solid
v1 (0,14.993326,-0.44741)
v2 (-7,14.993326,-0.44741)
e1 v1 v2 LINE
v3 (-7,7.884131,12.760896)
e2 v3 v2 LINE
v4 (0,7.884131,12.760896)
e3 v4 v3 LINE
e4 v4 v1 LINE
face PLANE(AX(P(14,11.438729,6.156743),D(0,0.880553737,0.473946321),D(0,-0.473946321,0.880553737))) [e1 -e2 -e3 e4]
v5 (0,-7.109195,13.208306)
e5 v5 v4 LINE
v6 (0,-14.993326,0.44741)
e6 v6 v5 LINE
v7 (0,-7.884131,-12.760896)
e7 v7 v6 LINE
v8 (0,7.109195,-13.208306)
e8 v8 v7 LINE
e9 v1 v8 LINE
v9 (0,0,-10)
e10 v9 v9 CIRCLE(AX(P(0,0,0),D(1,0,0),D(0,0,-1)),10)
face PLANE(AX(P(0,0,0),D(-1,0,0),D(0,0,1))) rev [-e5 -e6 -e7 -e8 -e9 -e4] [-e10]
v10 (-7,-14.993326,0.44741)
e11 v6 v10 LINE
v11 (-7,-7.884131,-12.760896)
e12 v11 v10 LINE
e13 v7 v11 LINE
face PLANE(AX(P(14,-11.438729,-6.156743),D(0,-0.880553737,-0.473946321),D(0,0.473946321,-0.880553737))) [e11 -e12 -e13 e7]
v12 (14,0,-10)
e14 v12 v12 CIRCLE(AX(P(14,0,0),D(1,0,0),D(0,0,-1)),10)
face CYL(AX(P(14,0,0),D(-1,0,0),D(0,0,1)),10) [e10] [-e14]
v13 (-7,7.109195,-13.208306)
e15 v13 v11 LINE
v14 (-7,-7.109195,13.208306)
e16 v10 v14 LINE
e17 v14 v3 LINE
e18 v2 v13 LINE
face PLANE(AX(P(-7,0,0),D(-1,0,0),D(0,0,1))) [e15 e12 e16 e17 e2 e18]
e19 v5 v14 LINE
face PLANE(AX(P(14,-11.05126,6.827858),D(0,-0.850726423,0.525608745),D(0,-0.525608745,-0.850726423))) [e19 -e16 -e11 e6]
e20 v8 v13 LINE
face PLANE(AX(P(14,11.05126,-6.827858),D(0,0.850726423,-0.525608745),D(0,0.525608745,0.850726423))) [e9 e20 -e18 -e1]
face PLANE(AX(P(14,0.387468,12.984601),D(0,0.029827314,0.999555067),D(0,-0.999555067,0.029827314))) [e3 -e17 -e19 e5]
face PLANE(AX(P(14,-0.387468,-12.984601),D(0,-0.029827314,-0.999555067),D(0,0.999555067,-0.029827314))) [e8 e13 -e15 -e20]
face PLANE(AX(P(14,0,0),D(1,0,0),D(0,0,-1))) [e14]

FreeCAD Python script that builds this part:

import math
import FreeCAD as App
import Part
import Sketcher
from FreeCAD import Vector
Q = App.Units.Quantity

doc = App.newDocument("Part")
body = doc.addObject("PartDesign::Body", "Body")

# Sketch on YZ plane
sketch1 = body.newObject("Sketcher::SketchObject", "Sketch")
sketch1.AttachmentSupport = (doc.getObject("YZ_Plane"), [""])
sketch1.MapMode = "FlatFace"
sketch1.addGeometry(Part.Circle(Vector(0, 0, 0), Vector(0, 0, 1), 10), False)
sketch1.addConstraint([
    Sketcher.Constraint("Coincident", 0, 3, -1, 1),
    Sketcher.Constraint("Diameter", 0, Q("20 mm")),
])
pad1 = body.newObject("PartDesign::Pad", "Pad")
pad1.Profile = sketch1
pad1.Length = 14

# Sketch on YZ plane
sketch2 = body.newObject("Sketcher::SketchObject", "Sketch001")
sketch2.AttachmentSupport = (doc.getObject("YZ_Plane"), [""])
sketch2.MapMode = "FlatFace"
sketch2.addGeometry(Part.Circle(Vector(0, 0, 0), Vector(0, 0, 1), 15), False)
sketch2.addConstraint([
    Sketcher.Constraint("Coincident", 0, 3, -1, 1),
    Sketcher.Constraint("Diameter", 0, Q("30 mm")),
])
pad2 = body.newObject("PartDesign::Pad", "Pad001")
pad2.Profile = sketch2
pad2.Length = 7
pad2.Reversed = True

# Sketch on YZ plane
sketch3 = body.newObject("Sketcher::SketchObject", "Sketch002")
sketch3.AttachmentSupport = (doc.getObject("YZ_Plane"), [""])
sketch3.MapMode = "FlatFace"
sketch3.AttachmentOffset = App.Placement(Vector(0, 0, -7), App.Rotation())
sketch3.addGeometry([
    Part.LineSegment(Vector(7, -13, 0), Vector(15, 0, 0)),  # 0
    Part.ArcOfCircle(Part.Circle(Vector(0, 0, 0), Vector(0, 0, 1), 15), math.radians(-62), math.radians(-2)),  # 1
    Part.LineSegment(Vector(-8, -13, 0), Vector(7, -13, 0)),  # 2
    Part.ArcOfCircle(Part.Circle(Vector(0, 0, 0), Vector(0, 0, 1), 15), math.radians(-122), math.radians(-62)),  # 3
    Part.LineSegment(Vector(-15, 0, 0), Vector(-8, -13, 0)),  # 4
    Part.ArcOfCircle(Part.Circle(Vector(0, 0, 0), Vector(0, 0, 1), 15), math.radians(178), math.radians(238)),  # 5
    Part.ArcOfCircle(Part.Circle(Vector(0, 0, 0), Vector(0, 0, 1), 15), math.radians(118), math.radians(178)),  # 6
    Part.LineSegment(Vector(-7, 13, 0), Vector(-15, 0, 0)),  # 7
    Part.ArcOfCircle(Part.Circle(Vector(0, 0, 0), Vector(0, 0, 1), 15), math.radians(58), math.radians(90)),  # 8
    Part.LineSegment(Vector(8, 13, 0), Vector(-7, 13, 0)),  # 9
    Part.ArcOfCircle(Part.Circle(Vector(0, 0, 0), Vector(0, 0, 1), 15), math.radians(90), math.radians(118)),  # 10
    Part.ArcOfCircle(Part.Circle(Vector(0, 0, 0), Vector(0, 0, 1), 15), math.radians(-2), math.radians(58)),  # 11
    Part.LineSegment(Vector(15, 0, 0), Vector(8, 13, 0)),  # 12
], False)
sketch3.addConstraint([
    Sketcher.Constraint("Coincident", 0, 1, 1, 1),
    Sketcher.Constraint("Coincident", 1, 2, 0, 2),
    Sketcher.Constraint("Coincident", 2, 1, 3, 1),
    Sketcher.Constraint("Coincident", 3, 2, 2, 2),
    Sketcher.Constraint("Coincident", 4, 1, 5, 1),
    Sketcher.Constraint("Coincident", 5, 2, 4, 2),
    Sketcher.Constraint("Coincident", 6, 1, 7, 1),
    Sketcher.Constraint("Coincident", 7, 2, 6, 2),
    Sketcher.Constraint("Coincident", 8, 1, 9, 1),
    Sketcher.Constraint("Coincident", 9, 2, 10, 2),
    Sketcher.Constraint("Tangent", 10, 1, 8, 2),
    Sketcher.Constraint("Coincident", 11, 1, 12, 1),
    Sketcher.Constraint("Coincident", 12, 2, 11, 2),
    Sketcher.Constraint("Coincident", 1, 3, -1, 1),
    Sketcher.Constraint("Coincident", 3, 3, -1, 1),
    Sketcher.Constraint("Coincident", 5, 3, -1, 1),
    Sketcher.Constraint("Coincident", 6, 3, -1, 1),
    Sketcher.Constraint("Coincident", 8, 3, -1, 1),
    Sketcher.Constraint("Coincident", 11, 3, -1, 1),
    Sketcher.Constraint("Coincident", 3, 2, 0, 1),
    Sketcher.Constraint("Coincident", 5, 2, 2, 1),
    Sketcher.Constraint("Coincident", 7, 2, 4, 1),
    Sketcher.Constraint("Coincident", 9, 2, 6, 1),
    Sketcher.Constraint("Coincident", 11, 1, 1, 2),
    Sketcher.Constraint("Coincident", 12, 2, 8, 1),
    Sketcher.Constraint("PointOnObject", 10, 1, -2),
    Sketcher.Constraint("Parallel", 0, 7),
    Sketcher.Constraint("Parallel", 2, 9),
    Sketcher.Constraint("Equal", 0, 2),
    Sketcher.Constraint("Equal", 2, 4),
    Sketcher.Constraint("Equal", 4, 7),
    Sketcher.Constraint("Radius", 1, Q("15 mm")),
    Sketcher.Constraint("DistanceY", 1, 2, -1, 1, Q("0.44741 mm")),
])
pocket1 = body.newObject("PartDesign::Pocket", "Pocket")
pocket1.Profile = sketch3
pocket1.Type = "ThroughAll"
pocket1.Reversed = True

doc.recompute()
